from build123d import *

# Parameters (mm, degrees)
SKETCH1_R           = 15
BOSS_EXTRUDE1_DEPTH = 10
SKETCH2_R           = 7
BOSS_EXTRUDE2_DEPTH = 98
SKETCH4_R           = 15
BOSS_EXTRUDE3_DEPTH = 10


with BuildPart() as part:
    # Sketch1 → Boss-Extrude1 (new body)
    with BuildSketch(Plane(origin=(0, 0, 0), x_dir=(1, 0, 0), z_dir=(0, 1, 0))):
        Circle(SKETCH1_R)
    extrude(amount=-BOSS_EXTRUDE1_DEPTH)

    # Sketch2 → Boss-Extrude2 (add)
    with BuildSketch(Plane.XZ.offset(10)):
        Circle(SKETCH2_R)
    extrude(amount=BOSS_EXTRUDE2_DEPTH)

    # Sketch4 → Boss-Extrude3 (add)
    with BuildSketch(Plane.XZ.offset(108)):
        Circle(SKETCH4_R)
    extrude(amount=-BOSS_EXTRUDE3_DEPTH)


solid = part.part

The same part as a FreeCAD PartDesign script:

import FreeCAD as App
import Part
import Sketcher
from FreeCAD import Vector

doc = App.newDocument("Part")
body = doc.addObject("PartDesign::Body", "Body")

# Sketch on XZ plane
sketch1 = body.newObject("Sketcher::SketchObject", "Sketch")
sketch1.AttachmentSupport = (doc.getObject("XZ_Plane"), [""])
sketch1.MapMode = "FlatFace"
sketch1.addGeometry(Part.Circle(Vector(0, 0, 0), Vector(0, 0, 1), 15), False)
sketch1.addConstraint([
    Sketcher.Constraint("Coincident", 0, 3, -1, 1),
    Sketcher.Constraint("Diameter", 0, 30.0),
])
pad1 = body.newObject("PartDesign::Pad", "Pad")
pad1.Profile = sketch1
pad1.Length = 10

# Sketch on XZ plane
sketch2 = body.newObject("Sketcher::SketchObject", "Sketch001")
sketch2.AttachmentSupport = (doc.getObject("XZ_Plane"), [""])
sketch2.MapMode = "FlatFace"
sketch2.AttachmentOffset = App.Placement(Vector(0, 0, 10), App.Rotation())
sketch2.addGeometry(Part.Circle(Vector(0, 0, 0), Vector(0, 0, 1), 7), False)
sketch2.addConstraint([
    Sketcher.Constraint("Coincident", 0, 3, -1, 1),
    Sketcher.Constraint("Diameter", 0, 14.0),
])
pad2 = body.newObject("PartDesign::Pad", "Pad001")
pad2.Profile = sketch2
pad2.Length = 98

# Sketch on XZ plane
sketch3 = body.newObject("Sketcher::SketchObject", "Sketch002")
sketch3.AttachmentSupport = (doc.getObject("XZ_Plane"), [""])
sketch3.MapMode = "FlatFace"
sketch3.AttachmentOffset = App.Placement(Vector(0, 0, 108), App.Rotation())
sketch3.addGeometry(Part.Circle(Vector(0, 0, 0), Vector(0, 0, 1), 15), False)
sketch3.addConstraint([
    Sketcher.Constraint("Coincident", 0, 3, -1, 1),
    Sketcher.Constraint("Diameter", 0, 30.0),
])
pad3 = body.newObject("PartDesign::Pad", "Pad002")
pad3.Profile = sketch3
pad3.Length = 10
pad3.Reversed = True

doc.recompute()
